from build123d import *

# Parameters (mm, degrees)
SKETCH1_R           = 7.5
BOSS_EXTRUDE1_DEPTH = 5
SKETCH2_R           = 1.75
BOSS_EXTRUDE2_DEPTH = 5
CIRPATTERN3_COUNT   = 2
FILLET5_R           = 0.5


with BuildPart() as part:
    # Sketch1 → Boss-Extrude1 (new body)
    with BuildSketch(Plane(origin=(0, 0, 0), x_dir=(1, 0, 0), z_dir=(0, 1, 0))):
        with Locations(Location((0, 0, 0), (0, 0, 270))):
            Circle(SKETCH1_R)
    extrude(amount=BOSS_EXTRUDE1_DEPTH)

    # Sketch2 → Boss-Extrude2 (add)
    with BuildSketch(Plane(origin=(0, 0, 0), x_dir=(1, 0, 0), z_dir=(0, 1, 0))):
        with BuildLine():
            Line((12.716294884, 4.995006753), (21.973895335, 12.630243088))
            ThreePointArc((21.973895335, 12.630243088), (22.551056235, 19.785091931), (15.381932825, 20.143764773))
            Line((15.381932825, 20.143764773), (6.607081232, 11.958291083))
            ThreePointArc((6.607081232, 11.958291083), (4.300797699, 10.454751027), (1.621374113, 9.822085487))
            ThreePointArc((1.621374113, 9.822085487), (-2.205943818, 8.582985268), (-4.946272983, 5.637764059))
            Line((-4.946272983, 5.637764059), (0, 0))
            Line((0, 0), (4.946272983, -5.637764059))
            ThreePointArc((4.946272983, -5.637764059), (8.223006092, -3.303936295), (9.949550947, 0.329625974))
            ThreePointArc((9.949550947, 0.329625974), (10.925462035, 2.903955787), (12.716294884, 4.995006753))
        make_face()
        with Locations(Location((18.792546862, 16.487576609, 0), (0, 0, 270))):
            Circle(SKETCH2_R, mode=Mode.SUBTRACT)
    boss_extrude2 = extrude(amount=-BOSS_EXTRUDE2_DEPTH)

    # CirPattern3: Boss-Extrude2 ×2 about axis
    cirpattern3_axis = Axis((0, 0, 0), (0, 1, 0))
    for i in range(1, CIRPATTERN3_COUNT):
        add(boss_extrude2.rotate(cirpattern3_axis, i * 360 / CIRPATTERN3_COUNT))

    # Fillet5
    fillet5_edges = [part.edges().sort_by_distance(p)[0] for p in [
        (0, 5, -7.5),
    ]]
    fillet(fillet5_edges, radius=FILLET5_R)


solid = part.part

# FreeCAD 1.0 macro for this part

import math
import FreeCAD as App
import Part
import Sketcher
Q = App.Units.Quantity


def edges_at(feature, points):
    """Names of the edges that pass closest to the given points."""
    edges = feature.Shape.Edges
    near = lambda p: min(range(len(edges)), key=lambda i: edges[i].distToShape(Part.Vertex(*p))[0])
    return sorted({f"Edge{near(p) + 1}" for p in points})

doc = App.newDocument("Part")
params = doc.addObject("Spreadsheet::Sheet", "Params")
for row, (alias, value) in enumerate([
    ("sketch1_diameter", "15 mm"),
    ("pad1_length", "5 mm"),
    ("sketch2_radius", "5 mm"),
    ("sketch2_radius2", "8 mm"),
    ("sketch2_diameter", "3.5 mm"),
    ("sketch2_length", "12 mm"),
    ("sketch2_length2", "15 mm"),
    ("pad2_length", "5 mm"),
    ("fillet_radius", "0.5 mm"),
], start=1):
    params.set(f"A{row}", alias)
    params.set(f"B{row}", "=" + value)
    params.setAlias(f"B{row}", alias)

body = doc.addObject("PartDesign::Body", "Body")

# Sketch on XZ plane
sketch1 = doc.addObject("Sketcher::SketchObject", "Sketch")
body.addObject(sketch1)
sketch1.AttachmentSupport = (doc.XZ_Plane, [""])
sketch1.MapMode = "FlatFace"
sketch1.addGeometry(Part.Circle(App.Vector(0, 0, 0), App.Vector(0, 0, 1), 8), False)
sketch1.addConstraint(Sketcher.Constraint("Coincident", 0, 3, -1, 1))
sketch1.addConstraint(Sketcher.Constraint("Diameter", 0, Q("15 mm")))
sketch1.setExpression("Constraints[1]", "Params.sketch1_diameter")
pad1 = doc.addObject("PartDesign::Pad", "Pad")
body.addObject(pad1)
pad1.Profile = sketch1
pad1.setExpression("Length", "Params.pad1_length")
pad1.Reversed = True

# Sketch on XZ plane
sketch2 = doc.addObject("Sketcher::SketchObject", "Sketch001")
body.addObject(sketch2)
sketch2.AttachmentSupport = (doc.XZ_Plane, [""])
sketch2.MapMode = "FlatFace"
sketch2.addGeometry(Part.LineSegment(App.Vector(12.7, -5, 0), App.Vector(22, -12.6, 0)), False)
sketch2.addGeometry(Part.ArcOfCircle(Part.Circle(App.Vector(18.8, -16.5, 0), App.Vector(0, 0, 1), 5), math.radians(-133), math.radians(50)), False)
sketch2.addGeometry(Part.LineSegment(App.Vector(15.4, -20.1, 0), App.Vector(6.6, -12, 0)), False)
sketch2.addGeometry(Part.ArcOfCircle(Part.Circle(App.Vector(1.2, -17.8, 0), App.Vector(0, 0, 1), 8), math.radians(47), math.radians(87)), False)
sketch2.addGeometry(Part.ArcOfCircle(Part.Circle(App.Vector(2.1, -1.8, 0), App.Vector(0, 0, 1), 8), math.radians(-152), math.radians(-93)), False)
sketch2.addGeometry(Part.LineSegment(App.Vector(-4.9, -5.6, 0), App.Vector(4.9, 5.6, 0)), False)
sketch2.addGeometry(Part.ArcOfCircle(Part.Circle(App.Vector(2.1, -1.8, 0), App.Vector(0, 0, 1), 8), math.radians(11), math.radians(69)), False)
sketch2.addGeometry(Part.ArcOfCircle(Part.Circle(App.Vector(17.8, 1.2, 0), App.Vector(0, 0, 1), 8), math.radians(-169), math.radians(-130)), False)
sketch2.addGeometry(Part.Circle(App.Vector(18.8, -16.5, 0), App.Vector(0, 0, 1), 1.8), False)
sketch2.addConstraint(Sketcher.Constraint("Tangent", 0, 2, 1, 2))
sketch2.addConstraint(Sketcher.Constraint("Tangent", 1, 1, 2, 1))
sketch2.addConstraint(Sketcher.Constraint("Tangent", 2, 2, 3, 1))
sketch2.addConstraint(Sketcher.Constraint("Tangent", 3, 2, 4, 2))
sketch2.addConstraint(Sketcher.Constraint("Coincident", 4, 1, 5, 1))
sketch2.addConstraint(Sketcher.Constraint("Coincident", 5, 2, 6, 2))
sketch2.addConstraint(Sketcher.Constraint("Tangent", 6, 1, 7, 1))
sketch2.addConstraint(Sketcher.Constraint("Tangent", 7, 2, 0, 1))
sketch2.addConstraint(Sketcher.Constraint("Coincident", 6, 3, 4, 3))
sketch2.addConstraint(Sketcher.Constraint("Coincident", 8, 3, 1, 3))
sketch2.addConstraint(Sketcher.Constraint("Equal", 3, 4))
sketch2.addConstraint(Sketcher.Constraint("Equal", 4, 6))
sketch2.addConstraint(Sketcher.Constraint("Equal", 6, 7))
sketch2.addConstraint(Sketcher.Constraint("Symmetric", 4, 1, 5, 2, -1, 1))
sketch2.addConstraint(Sketcher.Constraint("Equal", 0, 2))
sketch2.addConstraint(Sketcher.Constraint("Radius", 1, Q("5 mm")))
sketch2.addConstraint(Sketcher.Constraint("Radius", 3, Q("8 mm")))
sketch2.addConstraint(Sketcher.Constraint("Diameter", 8, Q("3.5 mm")))
sketch2.addConstraint(Sketcher.Constraint("Distance", 0, Q("12 mm")))
sketch2.addConstraint(Sketcher.Constraint("Distance", 5, Q("15 mm")))
sketch2.addConstraint(Sketcher.Constraint("DistanceX", -1, 1, 3, 3, Q("1.150099 mm")))
sketch2.addConstraint(Sketcher.Constraint("DistanceY", 3, 3, 2, 2, Q("5.849901 mm")))
sketch2.addConstraint(Sketcher.Constraint("DistanceX", 3, 2, 5, 2, Q("3.324899 mm")))
sketch2.setExpression("Constraints[15]", "Params.sketch2_radius")
sketch2.setExpression("Constraints[16]", "Params.sketch2_radius2")
sketch2.setExpression("Constraints[17]", "Params.sketch2_diameter")
sketch2.setExpression("Constraints[18]", "Params.sketch2_length")
sketch2.setExpression("Constraints[19]", "Params.sketch2_length2")
pad2 = doc.addObject("PartDesign::Pad", "Pad001")
body.addObject(pad2)
pad2.Profile = sketch2
pad2.setExpression("Length", "Params.pad2_length")
doc.recompute()

polarpattern = doc.addObject("PartDesign::PolarPattern", "PolarPattern")
body.addObject(polarpattern)
polarpattern.Originals = [pad2]
polarpattern.Axis = (doc.Y_Axis, [""])
polarpattern.Angle = 360
polarpattern.Occurrences = 2
body.Tip = polarpattern
doc.recompute()

fillet = doc.addObject("PartDesign::Fillet", "Fillet")
body.addObject(fillet)
fillet.Base = (polarpattern, edges_at(polarpattern, [(0, 5, -7.5)]))
fillet.setExpression("Radius", "Params.fillet_radius")

doc.recompute()
